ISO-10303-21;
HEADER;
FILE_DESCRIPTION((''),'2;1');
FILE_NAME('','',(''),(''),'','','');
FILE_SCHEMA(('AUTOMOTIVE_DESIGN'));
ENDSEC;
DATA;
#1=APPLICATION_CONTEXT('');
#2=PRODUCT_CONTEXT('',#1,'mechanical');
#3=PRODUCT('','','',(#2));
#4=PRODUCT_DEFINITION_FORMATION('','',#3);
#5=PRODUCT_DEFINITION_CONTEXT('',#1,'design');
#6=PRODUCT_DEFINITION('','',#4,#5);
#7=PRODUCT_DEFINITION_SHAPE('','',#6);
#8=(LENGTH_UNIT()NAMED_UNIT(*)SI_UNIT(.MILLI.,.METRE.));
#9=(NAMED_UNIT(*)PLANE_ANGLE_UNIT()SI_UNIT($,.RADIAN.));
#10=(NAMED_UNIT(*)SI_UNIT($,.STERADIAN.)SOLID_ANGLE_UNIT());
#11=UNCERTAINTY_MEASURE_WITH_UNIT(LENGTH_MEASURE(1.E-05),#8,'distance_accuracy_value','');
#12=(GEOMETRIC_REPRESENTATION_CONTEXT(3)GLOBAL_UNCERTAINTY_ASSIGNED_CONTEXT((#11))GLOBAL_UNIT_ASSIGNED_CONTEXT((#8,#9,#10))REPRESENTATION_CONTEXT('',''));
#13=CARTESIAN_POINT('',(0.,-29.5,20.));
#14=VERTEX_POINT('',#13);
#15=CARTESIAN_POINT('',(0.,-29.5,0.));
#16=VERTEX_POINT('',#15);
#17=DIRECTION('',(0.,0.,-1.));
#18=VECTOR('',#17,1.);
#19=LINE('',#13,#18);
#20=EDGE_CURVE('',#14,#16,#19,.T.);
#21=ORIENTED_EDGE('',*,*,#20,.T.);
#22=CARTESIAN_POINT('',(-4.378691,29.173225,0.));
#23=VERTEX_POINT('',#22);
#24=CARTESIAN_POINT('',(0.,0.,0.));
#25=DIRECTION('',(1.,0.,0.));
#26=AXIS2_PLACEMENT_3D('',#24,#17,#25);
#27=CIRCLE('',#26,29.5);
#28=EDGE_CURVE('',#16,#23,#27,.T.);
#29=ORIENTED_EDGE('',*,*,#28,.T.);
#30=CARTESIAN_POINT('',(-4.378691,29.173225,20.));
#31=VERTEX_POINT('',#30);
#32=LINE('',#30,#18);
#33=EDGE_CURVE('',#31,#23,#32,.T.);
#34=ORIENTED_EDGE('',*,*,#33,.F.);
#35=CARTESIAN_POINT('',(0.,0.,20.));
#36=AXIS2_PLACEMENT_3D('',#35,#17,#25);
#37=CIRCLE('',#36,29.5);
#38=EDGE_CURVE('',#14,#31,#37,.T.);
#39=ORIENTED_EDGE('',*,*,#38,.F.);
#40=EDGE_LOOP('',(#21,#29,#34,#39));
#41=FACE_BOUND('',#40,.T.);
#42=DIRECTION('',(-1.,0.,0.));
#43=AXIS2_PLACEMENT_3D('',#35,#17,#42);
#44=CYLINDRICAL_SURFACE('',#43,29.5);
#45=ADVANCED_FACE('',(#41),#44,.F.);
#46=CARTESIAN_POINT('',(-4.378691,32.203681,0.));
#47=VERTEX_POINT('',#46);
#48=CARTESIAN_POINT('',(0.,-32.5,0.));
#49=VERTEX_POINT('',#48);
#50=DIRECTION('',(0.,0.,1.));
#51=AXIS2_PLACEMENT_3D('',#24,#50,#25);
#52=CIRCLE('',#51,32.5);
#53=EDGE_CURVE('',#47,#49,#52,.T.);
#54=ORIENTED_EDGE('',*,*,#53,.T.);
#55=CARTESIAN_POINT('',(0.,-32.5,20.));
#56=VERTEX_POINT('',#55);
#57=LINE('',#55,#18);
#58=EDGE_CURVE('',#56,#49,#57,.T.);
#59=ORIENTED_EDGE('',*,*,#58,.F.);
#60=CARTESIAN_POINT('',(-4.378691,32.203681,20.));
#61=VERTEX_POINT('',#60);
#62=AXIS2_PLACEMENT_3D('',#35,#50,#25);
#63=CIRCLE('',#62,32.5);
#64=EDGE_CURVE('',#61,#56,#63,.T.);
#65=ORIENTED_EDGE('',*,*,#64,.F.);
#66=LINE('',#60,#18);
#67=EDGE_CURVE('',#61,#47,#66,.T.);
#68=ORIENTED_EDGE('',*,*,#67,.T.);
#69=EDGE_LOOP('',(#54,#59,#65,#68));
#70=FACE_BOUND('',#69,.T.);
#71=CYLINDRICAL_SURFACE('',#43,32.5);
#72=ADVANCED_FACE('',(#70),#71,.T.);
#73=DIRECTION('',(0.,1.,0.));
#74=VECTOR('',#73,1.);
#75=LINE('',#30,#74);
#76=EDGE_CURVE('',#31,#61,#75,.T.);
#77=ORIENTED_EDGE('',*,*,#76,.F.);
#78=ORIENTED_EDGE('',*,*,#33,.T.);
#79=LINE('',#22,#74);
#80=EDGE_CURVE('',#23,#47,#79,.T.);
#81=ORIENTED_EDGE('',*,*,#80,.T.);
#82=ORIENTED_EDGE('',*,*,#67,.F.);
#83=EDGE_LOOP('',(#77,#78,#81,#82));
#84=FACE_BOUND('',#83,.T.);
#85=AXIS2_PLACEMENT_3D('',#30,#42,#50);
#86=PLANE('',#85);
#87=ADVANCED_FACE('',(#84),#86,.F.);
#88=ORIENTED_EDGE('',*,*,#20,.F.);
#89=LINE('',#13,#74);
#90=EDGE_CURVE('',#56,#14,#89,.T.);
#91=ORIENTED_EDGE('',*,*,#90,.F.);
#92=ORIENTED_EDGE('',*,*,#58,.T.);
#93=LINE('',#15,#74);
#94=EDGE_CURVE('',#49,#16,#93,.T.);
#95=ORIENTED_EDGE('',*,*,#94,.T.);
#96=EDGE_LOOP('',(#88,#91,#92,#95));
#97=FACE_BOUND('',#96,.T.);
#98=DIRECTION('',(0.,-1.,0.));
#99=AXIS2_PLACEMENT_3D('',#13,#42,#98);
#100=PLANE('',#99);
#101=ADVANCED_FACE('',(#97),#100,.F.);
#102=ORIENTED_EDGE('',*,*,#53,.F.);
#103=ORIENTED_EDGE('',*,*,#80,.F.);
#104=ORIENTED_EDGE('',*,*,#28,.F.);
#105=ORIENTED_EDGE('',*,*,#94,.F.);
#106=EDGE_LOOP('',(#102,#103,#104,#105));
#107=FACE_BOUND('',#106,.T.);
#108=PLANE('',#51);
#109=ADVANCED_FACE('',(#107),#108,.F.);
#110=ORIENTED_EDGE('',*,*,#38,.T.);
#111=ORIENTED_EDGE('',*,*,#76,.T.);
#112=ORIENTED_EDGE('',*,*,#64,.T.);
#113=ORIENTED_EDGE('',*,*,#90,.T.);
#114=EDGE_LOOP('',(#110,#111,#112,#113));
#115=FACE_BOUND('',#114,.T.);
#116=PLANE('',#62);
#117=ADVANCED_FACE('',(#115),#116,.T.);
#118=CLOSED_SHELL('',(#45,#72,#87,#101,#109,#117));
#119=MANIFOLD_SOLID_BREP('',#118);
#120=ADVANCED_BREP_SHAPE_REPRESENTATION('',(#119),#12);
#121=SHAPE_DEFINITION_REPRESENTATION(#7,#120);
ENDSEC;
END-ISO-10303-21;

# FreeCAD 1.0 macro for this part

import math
import FreeCAD as App
import Part
import Sketcher
from FreeCAD import Vector
Q = App.Units.Quantity

doc = App.newDocument("Part")
params = doc.addObject("Spreadsheet::Sheet", "Params")
for row, (alias, value) in enumerate([
    ("sketch1_radius", "29.5 mm"),
    ("sketch1_radius2", "32.5 mm"),
    ("pad1_length", "20 mm"),
], start=1):
    params.set(f"A{row}", alias)
    params.set(f"B{row}", "=" + value)
    params.setAlias(f"B{row}", alias)

body = doc.addObject("PartDesign::Body", "Body")

sketch1 = body.newObject("Sketcher::SketchObject", "Sketch")
sketch1.AttachmentSupport = (doc.getObject("XY_Plane"), [""])
sketch1.MapMode = "FlatFace"
sketch1.addGeometry([
    Part.LineSegment(Vector(0, -32.5, 0), Vector(0, -29.5, 0)),
    Part.ArcOfCircle(Part.Circle(Vector(0, 0, 0), Vector(0, 0, 1), 29.5), math.radians(98.535966), math.radians(270)),
    Part.LineSegment(Vector(-4.378691, 29.173225, 0), Vector(-4.378691, 32.203681, 0)),
    Part.ArcOfCircle(Part.Circle(Vector(0, 0, 0), Vector(0, 0, 1), 32.5), math.radians(97.742947), math.radians(270)),
], False)
sketch1.addConstraint([
    Sketcher.Constraint("Coincident", 0, 2, 1, 2),
    Sketcher.Constraint("Coincident", 1, 1, 2, 1),
    Sketcher.Constraint("Coincident", 2, 2, 3, 1),
    Sketcher.Constraint("Coincident", 3, 2, 0, 1),
    Sketcher.Constraint("Vertical", 0),
    Sketcher.Constraint("Vertical", 2),
    Sketcher.Constraint("Coincident", 1, 3, -1, 1),
    Sketcher.Constraint("Coincident", 3, 3, -1, 1),
    Sketcher.Constraint("PointOnObject", 0, 2, -2),
    Sketcher.Constraint("Radius", 1, Q("29.5 mm")),
    Sketcher.Constraint("Radius", 3, Q("32.5 mm")),
    Sketcher.Constraint("DistanceY", 2, 1, 2, 2, Q("3.030456 mm")),
])
sketch1.setExpression("Constraints[9]", "Params.sketch1_radius")
sketch1.setExpression("Constraints[10]", "Params.sketch1_radius2")
pad1 = body.newObject("PartDesign::Pad", "Pad")
pad1.Profile = sketch1
pad1.setExpression("Length", "Params.pad1_length")

doc.recompute()
